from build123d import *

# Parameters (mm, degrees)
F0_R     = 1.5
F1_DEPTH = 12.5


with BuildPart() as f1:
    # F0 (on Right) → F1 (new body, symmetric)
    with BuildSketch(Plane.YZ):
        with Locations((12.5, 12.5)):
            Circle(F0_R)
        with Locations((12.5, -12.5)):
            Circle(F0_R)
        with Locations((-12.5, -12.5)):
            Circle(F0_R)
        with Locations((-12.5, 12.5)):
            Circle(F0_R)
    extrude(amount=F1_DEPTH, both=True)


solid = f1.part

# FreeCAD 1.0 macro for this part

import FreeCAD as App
import Part
import Sketcher
from FreeCAD import Vector
Q = App.Units.Quantity

doc = App.newDocument("Part")
body = doc.addObject("PartDesign::Body", "Body")
body.AllowCompound = True

# Sketch on YZ plane
sketch1 = body.newObject("Sketcher::SketchObject", "Sketch")
sketch1.AttachmentSupport = (doc.getObject("YZ_Plane"), [""])
sketch1.MapMode = "FlatFace"
sketch1.addGeometry(Part.Circle(Vector(12.5, 12.5, 0), Vector(0, 0, 1), 1.5), False)
sketch1.addGeometry(Part.Circle(Vector(12.5, -12.5, 0), Vector(0, 0, 1), 1.5), False)
sketch1.addGeometry(Part.Circle(Vector(-12.5, -12.5, 0), Vector(0, 0, 1), 1.5), False)
sketch1.addGeometry(Part.Circle(Vector(-12.5, 12.5, 0), Vector(0, 0, 1), 1.5), False)
sketch1.addConstraint(Sketcher.Constraint("Equal", 0, 1))
sketch1.addConstraint(Sketcher.Constraint("Equal", 1, 2))
sketch1.addConstraint(Sketcher.Constraint("Equal", 2, 3))
sketch1.addConstraint(Sketcher.Constraint("Symmetric", 0, 3, 2, 3, -1, 1))
sketch1.addConstraint(Sketcher.Constraint("Symmetric", 1, 3, 3, 3, -1, 1))
sketch1.addConstraint(Sketcher.Constraint("Symmetric", 1, 3, 2, 3, -2))
sketch1.addConstraint(Sketcher.Constraint("Diameter", 0, Q("3 mm")))
sketch1.addConstraint(Sketcher.Constraint("DistanceY", 1, 3, 0, 3, Q("25 mm")))
sketch1.addConstraint(Sketcher.Constraint("DistanceX", 2, 3, 1, 3, Q("25 mm")))
pad1 = body.newObject("PartDesign::Pad", "Pad")
pad1.Profile = sketch1
pad1.Length = 25
pad1.Midplane = True

doc.recompute()
